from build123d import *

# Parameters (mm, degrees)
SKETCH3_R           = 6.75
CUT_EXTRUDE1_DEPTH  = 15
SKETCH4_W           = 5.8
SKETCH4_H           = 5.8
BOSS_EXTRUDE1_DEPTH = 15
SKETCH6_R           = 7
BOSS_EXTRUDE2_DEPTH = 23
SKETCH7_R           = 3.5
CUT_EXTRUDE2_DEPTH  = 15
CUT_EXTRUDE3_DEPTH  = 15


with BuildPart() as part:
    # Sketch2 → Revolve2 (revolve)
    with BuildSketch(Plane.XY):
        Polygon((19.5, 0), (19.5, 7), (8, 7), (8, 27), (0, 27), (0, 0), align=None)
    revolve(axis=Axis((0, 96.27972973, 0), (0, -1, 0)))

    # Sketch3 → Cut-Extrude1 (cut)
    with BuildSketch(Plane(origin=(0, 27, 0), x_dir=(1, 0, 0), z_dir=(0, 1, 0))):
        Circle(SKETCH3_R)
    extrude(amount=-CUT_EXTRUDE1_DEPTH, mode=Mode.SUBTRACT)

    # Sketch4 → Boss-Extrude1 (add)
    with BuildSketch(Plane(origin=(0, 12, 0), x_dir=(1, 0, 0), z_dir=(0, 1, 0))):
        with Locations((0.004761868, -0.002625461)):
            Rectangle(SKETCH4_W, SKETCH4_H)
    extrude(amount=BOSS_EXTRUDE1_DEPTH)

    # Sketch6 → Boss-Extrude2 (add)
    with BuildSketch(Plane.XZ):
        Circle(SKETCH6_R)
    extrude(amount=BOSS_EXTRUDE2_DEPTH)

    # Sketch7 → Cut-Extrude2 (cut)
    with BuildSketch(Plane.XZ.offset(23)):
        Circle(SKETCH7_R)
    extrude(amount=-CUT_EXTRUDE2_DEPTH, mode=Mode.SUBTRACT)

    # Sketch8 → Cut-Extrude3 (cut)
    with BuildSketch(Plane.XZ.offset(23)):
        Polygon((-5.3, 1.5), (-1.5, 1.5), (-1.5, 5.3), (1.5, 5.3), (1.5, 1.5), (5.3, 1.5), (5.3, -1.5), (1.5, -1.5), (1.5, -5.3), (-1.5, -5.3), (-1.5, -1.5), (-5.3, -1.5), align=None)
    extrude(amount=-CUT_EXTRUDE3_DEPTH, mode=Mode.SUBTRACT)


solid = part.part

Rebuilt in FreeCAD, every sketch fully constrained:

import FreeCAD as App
import Part
import Sketcher

V = App.Vector


def add_polygon(sketch, points):
    """Adds a closed chain of lines whose ends are joined by coincident constraints."""
    first, n = sketch.GeometryCount, len(points)
    for a, b in zip(points, points[1:] + points[:1]):
        sketch.addGeometry(Part.LineSegment(App.Vector(*a, 0), App.Vector(*b, 0)), False)
    for i in range(n):
        sketch.addConstraint(Sketcher.Constraint("Coincident", first + i, 2, first + (i + 1) % n, 1))

doc = App.newDocument("Part")
params = doc.addObject("Spreadsheet::Sheet", "Params")
for row, (alias, value) in enumerate([
    ("sketch1_width", "8 mm"),
    ("sketch1_height", "7 mm"),
    ("sketch1_height2", "20 mm"),
    ("sketch1_width2", "11.5 mm"),
    ("revolution_angle", "360 deg"),
    ("sketch2_diameter", "13.5 mm"),
    ("pocket1_length", "15 mm"),
    ("sketch3_width", "5.8 mm"),
    ("pad1_length", "15 mm"),
    ("sketch4_diameter", "14 mm"),
    ("pad2_length", "23 mm"),
    ("sketch5_diameter", "7 mm"),
    ("pocket2_length", "15 mm"),
    ("sketch6_width", "3 mm"),
    ("sketch6_width2", "3.8 mm"),
    ("pocket3_length", "15 mm"),
], start=1):
    params.set(f"A{row}", alias)
    params.set(f"B{row}", "=" + value)
    params.setAlias(f"B{row}", alias)

body = doc.addObject("PartDesign::Body", "Body")

sketch1 = body.newObject("Sketcher::SketchObject", "Sketch")
sketch1.AttachmentSupport = (doc.getObject("XY_Plane"), [""])
sketch1.MapMode = "FlatFace"
add_polygon(sketch1, [(20, 0), (20, 7), (8, 7), (8, 27), (0, 27), (0, 0)])
sketch1.addConstraint(Sketcher.Constraint("Vertical", 0))
sketch1.addConstraint(Sketcher.Constraint("Horizontal", 1))
sketch1.addConstraint(Sketcher.Constraint("Vertical", 2))
sketch1.addConstraint(Sketcher.Constraint("Horizontal", 3))
sketch1.addConstraint(Sketcher.Constraint("Vertical", 4))
sketch1.addConstraint(Sketcher.Constraint("Horizontal", 5))
sketch1.addConstraint(Sketcher.Constraint("Coincident", 4, 2, -1, 1))
sketch1.addConstraint(Sketcher.Constraint("DistanceX", 3, 2, 3, 1, 8.0))
sketch1.addConstraint(Sketcher.Constraint("DistanceY", 0, 1, 0, 2, 7.0))
sketch1.addConstraint(Sketcher.Constraint("DistanceY", 2, 1, 2, 2, 20.0))
sketch1.addConstraint(Sketcher.Constraint("DistanceX", 1, 2, 1, 1, 11.5))
sketch1.setExpression("Constraints[13]", "Params.sketch1_width")
sketch1.setExpression("Constraints[14]", "Params.sketch1_height")
sketch1.setExpression("Constraints[15]", "Params.sketch1_height2")
sketch1.setExpression("Constraints[16]", "Params.sketch1_width2")
revolution = body.newObject("PartDesign::Revolution", "Revolution")
revolution.Profile = sketch1
revolution.ReferenceAxis = (sketch1, ["V_Axis"])
revolution.setExpression("Angle", "Params.revolution_angle")

sketch2 = body.newObject("Sketcher::SketchObject", "Sketch001")
sketch2.AttachmentSupport = (doc.getObject("XZ_Plane"), [""])
sketch2.MapMode = "FlatFace"
sketch2.AttachmentOffset = App.Placement(V(0, 0, -27), App.Rotation())
sketch2.addGeometry(Part.Circle(V(0, 0, 0), V(0, 0, 1), 7), False)
sketch2.addConstraint(Sketcher.Constraint("Coincident", 0, 3, -1, 1))
sketch2.addConstraint(Sketcher.Constraint("Diameter", 0, 13.5))
sketch2.setExpression("Constraints[1]", "Params.sketch2_diameter")
pocket1 = body.newObject("PartDesign::Pocket", "Pocket")
pocket1.Profile = sketch2
pocket1.setExpression("Length", "Params.pocket1_length")
pocket1.Reversed = True

sketch3 = body.newObject("Sketcher::SketchObject", "Sketch002")
sketch3.AttachmentSupport = (doc.getObject("XZ_Plane"), [""])
sketch3.MapMode = "FlatFace"
sketch3.AttachmentOffset = App.Placement(V(0, 0, -12), App.Rotation())
add_polygon(sketch3, [(-3, -3), (-3, 3), (3, 3), (3, -3)])
sketch3.addConstraint(Sketcher.Constraint("Vertical", 0))
sketch3.addConstraint(Sketcher.Constraint("Horizontal", 1))
sketch3.addConstraint(Sketcher.Constraint("Vertical", 2))
sketch3.addConstraint(Sketcher.Constraint("Horizontal", 3))
sketch3.addConstraint(Sketcher.Constraint("Equal", 3, 0))
sketch3.addConstraint(Sketcher.Constraint("DistanceX", 1, 1, 1, 2, 5.8))
sketch3.addConstraint(Sketcher.Constraint("DistanceX", 0, 2, -1, 1, 2.895238))
sketch3.addConstraint(Sketcher.Constraint("DistanceY", -1, 1, 0, 2, 2.902625))
sketch3.setExpression("Constraints[9]", "Params.sketch3_width")
pad1 = body.newObject("PartDesign::Pad", "Pad")
pad1.Profile = sketch3
pad1.setExpression("Length", "Params.pad1_length")
pad1.Reversed = True

sketch4 = body.newObject("Sketcher::SketchObject", "Sketch003")
sketch4.AttachmentSupport = (doc.getObject("XZ_Plane"), [""])
sketch4.MapMode = "FlatFace"
sketch4.addGeometry(Part.Circle(V(0, 0, 0), V(0, 0, 1), 7), False)
sketch4.addConstraint(Sketcher.Constraint("Coincident", 0, 3, -1, 1))
sketch4.addConstraint(Sketcher.Constraint("Diameter", 0, 14.0))
sketch4.setExpression("Constraints[1]", "Params.sketch4_diameter")
pad2 = body.newObject("PartDesign::Pad", "Pad001")
pad2.Profile = sketch4
pad2.setExpression("Length", "Params.pad2_length")

sketch5 = body.newObject("Sketcher::SketchObject", "Sketch004")
sketch5.AttachmentSupport = (doc.getObject("XZ_Plane"), [""])
sketch5.MapMode = "FlatFace"
sketch5.AttachmentOffset = App.Placement(V(0, 0, 23), App.Rotation())
sketch5.addGeometry(Part.Circle(V(0, 0, 0), V(0, 0, 1), 3.5), False)
sketch5.addConstraint(Sketcher.Constraint("Coincident", 0, 3, -1, 1))
sketch5.addConstraint(Sketcher.Constraint("Diameter", 0, 7.0))
sketch5.setExpression("Constraints[1]", "Params.sketch5_diameter")
pocket2 = body.newObject("PartDesign::Pocket", "Pocket001")
pocket2.Profile = sketch5
pocket2.setExpression("Length", "Params.pocket2_length")

sketch6 = body.newObject("Sketcher::SketchObject", "Sketch005")
sketch6.AttachmentSupport = (doc.getObject("XZ_Plane"), [""])
sketch6.MapMode = "FlatFace"
sketch6.AttachmentOffset = App.Placement(V(0, 0, 23), App.Rotation())
add_polygon(sketch6, [(-1.5, 1.5), (-5.3, 1.5), (-5.3, -1.5), (-1.5, -1.5), (-1.5, -5.3), (1.5, -5.3), (1.5, -1.5), (5.3, -1.5), (5.3, 1.5), (1.5, 1.5), (1.5, 5.3), (-1.5, 5.3)])
sketch6.addConstraint(Sketcher.Constraint("Horizontal", 0))
sketch6.addConstraint(Sketcher.Constraint("Vertical", 1))
sketch6.addConstraint(Sketcher.Constraint("Horizontal", 2))
sketch6.addConstraint(Sketcher.Constraint("Vertical", 3))
sketch6.addConstraint(Sketcher.Constraint("Horizontal", 4))
sketch6.addConstraint(Sketcher.Constraint("Vertical", 5))
sketch6.addConstraint(Sketcher.Constraint("Horizontal", 6))
sketch6.addConstraint(Sketcher.Constraint("Vertical", 7))
sketch6.addConstraint(Sketcher.Constraint("Horizontal", 8))
sketch6.addConstraint(Sketcher.Constraint("Vertical", 9))
sketch6.addConstraint(Sketcher.Constraint("Horizontal", 10))
sketch6.addConstraint(Sketcher.Constraint("Vertical", 11))
sketch6.addConstraint(Sketcher.Constraint("Symmetric", 0, 2, 6, 2, -1, 1))
sketch6.addConstraint(Sketcher.Constraint("Symmetric", 2, 2, 8, 2, -1, 1))
sketch6.addConstraint(Sketcher.Constraint("Symmetric", 4, 2, 10, 2, -1, 1))
sketch6.addConstraint(Sketcher.Constraint("Symmetric", 2, 2, 5, 2, -2))
sketch6.addConstraint(Sketcher.Constraint("Equal", 10, 1))
sketch6.addConstraint(Sketcher.Constraint("Equal", 8, 3))
sketch6.addConstraint(Sketcher.Constraint("DistanceX", 4, 1, 4, 2, 3.0))
sketch6.addConstraint(Sketcher.Constraint("DistanceX", 0, 2, 0, 1, 3.8))
sketch6.setExpression("Constraints[30]", "Params.sketch6_width")
sketch6.setExpression("Constraints[31]", "Params.sketch6_width2")
pocket3 = body.newObject("PartDesign::Pocket", "Pocket002")
pocket3.Profile = sketch6
pocket3.setExpression("Length", "Params.pocket3_length")

doc.recompute()
